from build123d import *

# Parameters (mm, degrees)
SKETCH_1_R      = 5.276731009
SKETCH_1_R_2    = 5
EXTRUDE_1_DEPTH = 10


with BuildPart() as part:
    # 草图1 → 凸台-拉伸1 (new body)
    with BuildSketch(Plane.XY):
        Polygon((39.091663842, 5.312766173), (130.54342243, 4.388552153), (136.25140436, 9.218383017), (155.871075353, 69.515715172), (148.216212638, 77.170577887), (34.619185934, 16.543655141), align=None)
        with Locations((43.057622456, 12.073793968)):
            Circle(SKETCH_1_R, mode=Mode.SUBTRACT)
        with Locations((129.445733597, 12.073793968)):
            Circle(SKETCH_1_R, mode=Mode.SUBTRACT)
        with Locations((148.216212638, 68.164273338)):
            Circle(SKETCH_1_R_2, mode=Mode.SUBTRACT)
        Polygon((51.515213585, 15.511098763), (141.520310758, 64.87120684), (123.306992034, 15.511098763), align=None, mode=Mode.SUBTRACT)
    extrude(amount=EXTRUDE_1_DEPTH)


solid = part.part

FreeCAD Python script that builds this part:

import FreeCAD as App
import Part
import Sketcher
Q = App.Units.Quantity


def add_polygon(sketch, points):
    """Adds a closed chain of lines whose ends are joined by coincident constraints."""
    first, n = sketch.GeometryCount, len(points)
    for a, b in zip(points, points[1:] + points[:1]):
        sketch.addGeometry(Part.LineSegment(App.Vector(*a, 0), App.Vector(*b, 0)), False)
    for i in range(n):
        sketch.addConstraint(Sketcher.Constraint("Coincident", first + i, 2, first + (i + 1) % n, 1))

doc = App.newDocument("Part")
body = doc.addObject("PartDesign::Body", "Body")

sketch1 = doc.addObject("Sketcher::SketchObject", "Sketch")
body.addObject(sketch1)
sketch1.AttachmentSupport = (doc.XY_Plane, [""])
sketch1.MapMode = "FlatFace"
add_polygon(sketch1, [(39, 5), (131, 4), (136, 9), (156, 70), (148, 77), (35, 17)])
sketch1.addGeometry(Part.Circle(App.Vector(43, 12, 0), App.Vector(0, 0, 1), 5), False)
sketch1.addGeometry(Part.Circle(App.Vector(129, 12, 0), App.Vector(0, 0, 1), 5), False)
add_polygon(sketch1, [(123, 16), (52, 16), (142, 65)])
sketch1.addGeometry(Part.Circle(App.Vector(148, 68, 0), App.Vector(0, 0, 1), 5), False)
sketch1.addConstraint(Sketcher.Constraint("Horizontal", 8))
sketch1.addConstraint(Sketcher.Constraint("Equal", 6, 7))
sketch1.addConstraint(Sketcher.Constraint("Horizontal", 6, 3, 7, 3))
sketch1.addConstraint(Sketcher.Constraint("Vertical", 11, 3, 3, 2))
sketch1.addConstraint(Sketcher.Constraint("Diameter", 11, 10.0))
sketch1.addConstraint(Sketcher.Constraint("Angle", 3, Q("135 deg")))
sketch1.addConstraint(Sketcher.Constraint("Diameter", 6, 10.553462))
sketch1.addConstraint(Sketcher.Constraint("DistanceX", 8, 2, 8, 1, 71.791778))
sketch1.addConstraint(Sketcher.Constraint("DistanceY", -1, 1, 8, 2, 15.511099))
sketch1.addConstraint(Sketcher.Constraint("DistanceX", 6, 3, 0, 2, 87.4858))
sketch1.addConstraint(Sketcher.Constraint("DistanceX", 9, 2, 11, 3, 6.695902))
sketch1.addConstraint(Sketcher.Constraint("Distance", 0, 91.456429))
sketch1.addConstraint(Sketcher.Constraint("Distance", 3, 10.825611))
sketch1.addConstraint(Sketcher.Constraint("Distance", 5, 12.088669))
sketch1.addConstraint(Sketcher.Constraint("DistanceX", -1, 1, 9, 2, 141.520311))
sketch1.addConstraint(Sketcher.Constraint("DistanceX", 6, 3, 7, 3, 86.388111))
sketch1.addConstraint(Sketcher.Constraint("DistanceX", 7, 3, 11, 3, 18.770479))
sketch1.addConstraint(Sketcher.Constraint("DistanceY", 7, 3, 11, 3, 56.090479))
sketch1.addConstraint(Sketcher.Constraint("DistanceY", 0, 2, 7, 3, 7.685242))
sketch1.addConstraint(Sketcher.Constraint("DistanceX", 7, 3, 1, 2, 6.805671))
sketch1.addConstraint(Sketcher.Constraint("DistanceY", 1, 2, 7, 3, 2.855411))
sketch1.addConstraint(Sketcher.Constraint("DistanceY", 11, 3, 2, 2, 1.351442))
sketch1.addConstraint(Sketcher.Constraint("DistanceY", 6, 3, 4, 2, 4.469861))
sketch1.addConstraint(Sketcher.Constraint("DistanceX", 4, 2, 1, 2, 101.632218))
sketch1.addConstraint(Sketcher.Constraint("DistanceX", 6, 3, 8, 2, 8.457591))
sketch1.addConstraint(Sketcher.Constraint("DistanceY", 9, 2, 3, 2, 12.299371))
sketch1.addConstraint(Sketcher.Constraint("DistanceY", 10, 2, 9, 2, 49.360108))
pad1 = doc.addObject("PartDesign::Pad", "Pad")
body.addObject(pad1)
pad1.Profile = sketch1
pad1.Length = 10

doc.recompute()
